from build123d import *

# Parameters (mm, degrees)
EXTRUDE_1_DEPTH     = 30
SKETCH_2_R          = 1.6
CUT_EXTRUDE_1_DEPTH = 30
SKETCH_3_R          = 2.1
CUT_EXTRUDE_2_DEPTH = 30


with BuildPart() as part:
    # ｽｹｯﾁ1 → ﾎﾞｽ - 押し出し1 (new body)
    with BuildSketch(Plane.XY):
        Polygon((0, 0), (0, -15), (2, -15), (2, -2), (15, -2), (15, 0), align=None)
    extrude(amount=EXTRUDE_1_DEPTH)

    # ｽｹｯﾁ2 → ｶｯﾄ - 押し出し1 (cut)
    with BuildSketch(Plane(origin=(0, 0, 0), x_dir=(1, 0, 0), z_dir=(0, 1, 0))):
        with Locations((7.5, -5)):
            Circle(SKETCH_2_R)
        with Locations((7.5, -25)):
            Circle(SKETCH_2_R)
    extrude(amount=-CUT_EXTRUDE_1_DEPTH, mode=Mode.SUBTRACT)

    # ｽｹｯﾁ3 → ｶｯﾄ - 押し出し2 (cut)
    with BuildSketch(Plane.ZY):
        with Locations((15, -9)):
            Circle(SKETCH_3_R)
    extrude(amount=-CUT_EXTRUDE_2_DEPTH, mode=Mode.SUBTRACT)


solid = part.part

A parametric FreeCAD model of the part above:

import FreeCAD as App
import Part
import Sketcher

doc = App.newDocument("Part")
body = doc.addObject("PartDesign::Body", "Body")

# Sketch on XY plane
sketch1 = body.newObject("Sketcher::SketchObject", "Sketch")
sketch1.AttachmentSupport = (doc.getObject("XY_Plane"), [""])
sketch1.MapMode = "FlatFace"
sketch1.addGeometry(Part.LineSegment(App.Vector(0, 0, 0), App.Vector(0, -15, 0)), False)
sketch1.addGeometry(Part.LineSegment(App.Vector(0, -15, 0), App.Vector(2, -15, 0)), False)
sketch1.addGeometry(Part.LineSegment(App.Vector(2, -15, 0), App.Vector(2, -2, 0)), False)
sketch1.addGeometry(Part.LineSegment(App.Vector(2, -2, 0), App.Vector(15, -2, 0)), False)
sketch1.addGeometry(Part.LineSegment(App.Vector(15, -2, 0), App.Vector(15, 0, 0)), False)
sketch1.addGeometry(Part.LineSegment(App.Vector(15, 0, 0), App.Vector(0, 0, 0)), False)
sketch1.addConstraint(Sketcher.Constraint("Coincident", 0, 2, 1, 1))
sketch1.addConstraint(Sketcher.Constraint("Coincident", 1, 2, 2, 1))
sketch1.addConstraint(Sketcher.Constraint("Coincident", 2, 2, 3, 1))
sketch1.addConstraint(Sketcher.Constraint("Coincident", 3, 2, 4, 1))
sketch1.addConstraint(Sketcher.Constraint("Coincident", 4, 2, 5, 1))
sketch1.addConstraint(Sketcher.Constraint("Coincident", 5, 2, 0, 1))
sketch1.addConstraint(Sketcher.Constraint("Vertical", 0))
sketch1.addConstraint(Sketcher.Constraint("Horizontal", 1))
sketch1.addConstraint(Sketcher.Constraint("Vertical", 2))
sketch1.addConstraint(Sketcher.Constraint("Horizontal", 3))
sketch1.addConstraint(Sketcher.Constraint("Vertical", 4))
sketch1.addConstraint(Sketcher.Constraint("Horizontal", 5))
sketch1.addConstraint(Sketcher.Constraint("Coincident", 5, 2, -1, 1))
sketch1.addConstraint(Sketcher.Constraint("Equal", 5, 0))
sketch1.addConstraint(Sketcher.Constraint("Equal", 3, 2))
sketch1.addConstraint(Sketcher.Constraint("DistanceX", 1, 1, 1, 2, 2.0))
sketch1.addConstraint(Sketcher.Constraint("DistanceX", 3, 1, 3, 2, 13.0))
pad1 = body.newObject("PartDesign::Pad", "Pad")
pad1.Profile = sketch1
pad1.Length = 30

# Sketch on XZ plane
sketch2 = body.newObject("Sketcher::SketchObject", "Sketch001")
sketch2.AttachmentSupport = (doc.getObject("XZ_Plane"), [""])
sketch2.MapMode = "FlatFace"
sketch2.addGeometry(Part.Circle(App.Vector(7.5, 5, 0), App.Vector(0, 0, 1), 1.6), False)
sketch2.addGeometry(Part.Circle(App.Vector(7.5, 25, 0), App.Vector(0, 0, 1), 1.6), False)
sketch2.addConstraint(Sketcher.Constraint("Equal", 0, 1))
sketch2.addConstraint(Sketcher.Constraint("Vertical", 0, 3, 1, 3))
sketch2.addConstraint(Sketcher.Constraint("Diameter", 0, 3.2))
sketch2.addConstraint(Sketcher.Constraint("DistanceY", -1, 1, 0, 3, 5.0))
sketch2.addConstraint(Sketcher.Constraint("DistanceY", -1, 1, 1, 3, 25.0))
sketch2.addConstraint(Sketcher.Constraint("DistanceX", -1, 1, 0, 3, 7.5))
pocket1 = body.newObject("PartDesign::Pocket", "Pocket")
pocket1.Profile = sketch2
pocket1.Length = 30
pocket1.Reversed = True

# Sketch on YZ plane
sketch3 = body.newObject("Sketcher::SketchObject", "Sketch002")
sketch3.AttachmentSupport = (doc.getObject("YZ_Plane"), [""])
sketch3.MapMode = "FlatFace"
sketch3.addGeometry(Part.Circle(App.Vector(-9, 15, 0), App.Vector(0, 0, 1), 2.1), False)
sketch3.addConstraint(Sketcher.Constraint("Diameter", 0, 4.2))
sketch3.addConstraint(Sketcher.Constraint("DistanceX", 0, 3, -1, 1, 9.0))
sketch3.addConstraint(Sketcher.Constraint("DistanceY", -1, 1, 0, 3, 15.0))
pocket2 = body.newObject("PartDesign::Pocket", "Pocket001")
pocket2.Profile = sketch3
pocket2.Length = 30
pocket2.Reversed = True

doc.recompute()
